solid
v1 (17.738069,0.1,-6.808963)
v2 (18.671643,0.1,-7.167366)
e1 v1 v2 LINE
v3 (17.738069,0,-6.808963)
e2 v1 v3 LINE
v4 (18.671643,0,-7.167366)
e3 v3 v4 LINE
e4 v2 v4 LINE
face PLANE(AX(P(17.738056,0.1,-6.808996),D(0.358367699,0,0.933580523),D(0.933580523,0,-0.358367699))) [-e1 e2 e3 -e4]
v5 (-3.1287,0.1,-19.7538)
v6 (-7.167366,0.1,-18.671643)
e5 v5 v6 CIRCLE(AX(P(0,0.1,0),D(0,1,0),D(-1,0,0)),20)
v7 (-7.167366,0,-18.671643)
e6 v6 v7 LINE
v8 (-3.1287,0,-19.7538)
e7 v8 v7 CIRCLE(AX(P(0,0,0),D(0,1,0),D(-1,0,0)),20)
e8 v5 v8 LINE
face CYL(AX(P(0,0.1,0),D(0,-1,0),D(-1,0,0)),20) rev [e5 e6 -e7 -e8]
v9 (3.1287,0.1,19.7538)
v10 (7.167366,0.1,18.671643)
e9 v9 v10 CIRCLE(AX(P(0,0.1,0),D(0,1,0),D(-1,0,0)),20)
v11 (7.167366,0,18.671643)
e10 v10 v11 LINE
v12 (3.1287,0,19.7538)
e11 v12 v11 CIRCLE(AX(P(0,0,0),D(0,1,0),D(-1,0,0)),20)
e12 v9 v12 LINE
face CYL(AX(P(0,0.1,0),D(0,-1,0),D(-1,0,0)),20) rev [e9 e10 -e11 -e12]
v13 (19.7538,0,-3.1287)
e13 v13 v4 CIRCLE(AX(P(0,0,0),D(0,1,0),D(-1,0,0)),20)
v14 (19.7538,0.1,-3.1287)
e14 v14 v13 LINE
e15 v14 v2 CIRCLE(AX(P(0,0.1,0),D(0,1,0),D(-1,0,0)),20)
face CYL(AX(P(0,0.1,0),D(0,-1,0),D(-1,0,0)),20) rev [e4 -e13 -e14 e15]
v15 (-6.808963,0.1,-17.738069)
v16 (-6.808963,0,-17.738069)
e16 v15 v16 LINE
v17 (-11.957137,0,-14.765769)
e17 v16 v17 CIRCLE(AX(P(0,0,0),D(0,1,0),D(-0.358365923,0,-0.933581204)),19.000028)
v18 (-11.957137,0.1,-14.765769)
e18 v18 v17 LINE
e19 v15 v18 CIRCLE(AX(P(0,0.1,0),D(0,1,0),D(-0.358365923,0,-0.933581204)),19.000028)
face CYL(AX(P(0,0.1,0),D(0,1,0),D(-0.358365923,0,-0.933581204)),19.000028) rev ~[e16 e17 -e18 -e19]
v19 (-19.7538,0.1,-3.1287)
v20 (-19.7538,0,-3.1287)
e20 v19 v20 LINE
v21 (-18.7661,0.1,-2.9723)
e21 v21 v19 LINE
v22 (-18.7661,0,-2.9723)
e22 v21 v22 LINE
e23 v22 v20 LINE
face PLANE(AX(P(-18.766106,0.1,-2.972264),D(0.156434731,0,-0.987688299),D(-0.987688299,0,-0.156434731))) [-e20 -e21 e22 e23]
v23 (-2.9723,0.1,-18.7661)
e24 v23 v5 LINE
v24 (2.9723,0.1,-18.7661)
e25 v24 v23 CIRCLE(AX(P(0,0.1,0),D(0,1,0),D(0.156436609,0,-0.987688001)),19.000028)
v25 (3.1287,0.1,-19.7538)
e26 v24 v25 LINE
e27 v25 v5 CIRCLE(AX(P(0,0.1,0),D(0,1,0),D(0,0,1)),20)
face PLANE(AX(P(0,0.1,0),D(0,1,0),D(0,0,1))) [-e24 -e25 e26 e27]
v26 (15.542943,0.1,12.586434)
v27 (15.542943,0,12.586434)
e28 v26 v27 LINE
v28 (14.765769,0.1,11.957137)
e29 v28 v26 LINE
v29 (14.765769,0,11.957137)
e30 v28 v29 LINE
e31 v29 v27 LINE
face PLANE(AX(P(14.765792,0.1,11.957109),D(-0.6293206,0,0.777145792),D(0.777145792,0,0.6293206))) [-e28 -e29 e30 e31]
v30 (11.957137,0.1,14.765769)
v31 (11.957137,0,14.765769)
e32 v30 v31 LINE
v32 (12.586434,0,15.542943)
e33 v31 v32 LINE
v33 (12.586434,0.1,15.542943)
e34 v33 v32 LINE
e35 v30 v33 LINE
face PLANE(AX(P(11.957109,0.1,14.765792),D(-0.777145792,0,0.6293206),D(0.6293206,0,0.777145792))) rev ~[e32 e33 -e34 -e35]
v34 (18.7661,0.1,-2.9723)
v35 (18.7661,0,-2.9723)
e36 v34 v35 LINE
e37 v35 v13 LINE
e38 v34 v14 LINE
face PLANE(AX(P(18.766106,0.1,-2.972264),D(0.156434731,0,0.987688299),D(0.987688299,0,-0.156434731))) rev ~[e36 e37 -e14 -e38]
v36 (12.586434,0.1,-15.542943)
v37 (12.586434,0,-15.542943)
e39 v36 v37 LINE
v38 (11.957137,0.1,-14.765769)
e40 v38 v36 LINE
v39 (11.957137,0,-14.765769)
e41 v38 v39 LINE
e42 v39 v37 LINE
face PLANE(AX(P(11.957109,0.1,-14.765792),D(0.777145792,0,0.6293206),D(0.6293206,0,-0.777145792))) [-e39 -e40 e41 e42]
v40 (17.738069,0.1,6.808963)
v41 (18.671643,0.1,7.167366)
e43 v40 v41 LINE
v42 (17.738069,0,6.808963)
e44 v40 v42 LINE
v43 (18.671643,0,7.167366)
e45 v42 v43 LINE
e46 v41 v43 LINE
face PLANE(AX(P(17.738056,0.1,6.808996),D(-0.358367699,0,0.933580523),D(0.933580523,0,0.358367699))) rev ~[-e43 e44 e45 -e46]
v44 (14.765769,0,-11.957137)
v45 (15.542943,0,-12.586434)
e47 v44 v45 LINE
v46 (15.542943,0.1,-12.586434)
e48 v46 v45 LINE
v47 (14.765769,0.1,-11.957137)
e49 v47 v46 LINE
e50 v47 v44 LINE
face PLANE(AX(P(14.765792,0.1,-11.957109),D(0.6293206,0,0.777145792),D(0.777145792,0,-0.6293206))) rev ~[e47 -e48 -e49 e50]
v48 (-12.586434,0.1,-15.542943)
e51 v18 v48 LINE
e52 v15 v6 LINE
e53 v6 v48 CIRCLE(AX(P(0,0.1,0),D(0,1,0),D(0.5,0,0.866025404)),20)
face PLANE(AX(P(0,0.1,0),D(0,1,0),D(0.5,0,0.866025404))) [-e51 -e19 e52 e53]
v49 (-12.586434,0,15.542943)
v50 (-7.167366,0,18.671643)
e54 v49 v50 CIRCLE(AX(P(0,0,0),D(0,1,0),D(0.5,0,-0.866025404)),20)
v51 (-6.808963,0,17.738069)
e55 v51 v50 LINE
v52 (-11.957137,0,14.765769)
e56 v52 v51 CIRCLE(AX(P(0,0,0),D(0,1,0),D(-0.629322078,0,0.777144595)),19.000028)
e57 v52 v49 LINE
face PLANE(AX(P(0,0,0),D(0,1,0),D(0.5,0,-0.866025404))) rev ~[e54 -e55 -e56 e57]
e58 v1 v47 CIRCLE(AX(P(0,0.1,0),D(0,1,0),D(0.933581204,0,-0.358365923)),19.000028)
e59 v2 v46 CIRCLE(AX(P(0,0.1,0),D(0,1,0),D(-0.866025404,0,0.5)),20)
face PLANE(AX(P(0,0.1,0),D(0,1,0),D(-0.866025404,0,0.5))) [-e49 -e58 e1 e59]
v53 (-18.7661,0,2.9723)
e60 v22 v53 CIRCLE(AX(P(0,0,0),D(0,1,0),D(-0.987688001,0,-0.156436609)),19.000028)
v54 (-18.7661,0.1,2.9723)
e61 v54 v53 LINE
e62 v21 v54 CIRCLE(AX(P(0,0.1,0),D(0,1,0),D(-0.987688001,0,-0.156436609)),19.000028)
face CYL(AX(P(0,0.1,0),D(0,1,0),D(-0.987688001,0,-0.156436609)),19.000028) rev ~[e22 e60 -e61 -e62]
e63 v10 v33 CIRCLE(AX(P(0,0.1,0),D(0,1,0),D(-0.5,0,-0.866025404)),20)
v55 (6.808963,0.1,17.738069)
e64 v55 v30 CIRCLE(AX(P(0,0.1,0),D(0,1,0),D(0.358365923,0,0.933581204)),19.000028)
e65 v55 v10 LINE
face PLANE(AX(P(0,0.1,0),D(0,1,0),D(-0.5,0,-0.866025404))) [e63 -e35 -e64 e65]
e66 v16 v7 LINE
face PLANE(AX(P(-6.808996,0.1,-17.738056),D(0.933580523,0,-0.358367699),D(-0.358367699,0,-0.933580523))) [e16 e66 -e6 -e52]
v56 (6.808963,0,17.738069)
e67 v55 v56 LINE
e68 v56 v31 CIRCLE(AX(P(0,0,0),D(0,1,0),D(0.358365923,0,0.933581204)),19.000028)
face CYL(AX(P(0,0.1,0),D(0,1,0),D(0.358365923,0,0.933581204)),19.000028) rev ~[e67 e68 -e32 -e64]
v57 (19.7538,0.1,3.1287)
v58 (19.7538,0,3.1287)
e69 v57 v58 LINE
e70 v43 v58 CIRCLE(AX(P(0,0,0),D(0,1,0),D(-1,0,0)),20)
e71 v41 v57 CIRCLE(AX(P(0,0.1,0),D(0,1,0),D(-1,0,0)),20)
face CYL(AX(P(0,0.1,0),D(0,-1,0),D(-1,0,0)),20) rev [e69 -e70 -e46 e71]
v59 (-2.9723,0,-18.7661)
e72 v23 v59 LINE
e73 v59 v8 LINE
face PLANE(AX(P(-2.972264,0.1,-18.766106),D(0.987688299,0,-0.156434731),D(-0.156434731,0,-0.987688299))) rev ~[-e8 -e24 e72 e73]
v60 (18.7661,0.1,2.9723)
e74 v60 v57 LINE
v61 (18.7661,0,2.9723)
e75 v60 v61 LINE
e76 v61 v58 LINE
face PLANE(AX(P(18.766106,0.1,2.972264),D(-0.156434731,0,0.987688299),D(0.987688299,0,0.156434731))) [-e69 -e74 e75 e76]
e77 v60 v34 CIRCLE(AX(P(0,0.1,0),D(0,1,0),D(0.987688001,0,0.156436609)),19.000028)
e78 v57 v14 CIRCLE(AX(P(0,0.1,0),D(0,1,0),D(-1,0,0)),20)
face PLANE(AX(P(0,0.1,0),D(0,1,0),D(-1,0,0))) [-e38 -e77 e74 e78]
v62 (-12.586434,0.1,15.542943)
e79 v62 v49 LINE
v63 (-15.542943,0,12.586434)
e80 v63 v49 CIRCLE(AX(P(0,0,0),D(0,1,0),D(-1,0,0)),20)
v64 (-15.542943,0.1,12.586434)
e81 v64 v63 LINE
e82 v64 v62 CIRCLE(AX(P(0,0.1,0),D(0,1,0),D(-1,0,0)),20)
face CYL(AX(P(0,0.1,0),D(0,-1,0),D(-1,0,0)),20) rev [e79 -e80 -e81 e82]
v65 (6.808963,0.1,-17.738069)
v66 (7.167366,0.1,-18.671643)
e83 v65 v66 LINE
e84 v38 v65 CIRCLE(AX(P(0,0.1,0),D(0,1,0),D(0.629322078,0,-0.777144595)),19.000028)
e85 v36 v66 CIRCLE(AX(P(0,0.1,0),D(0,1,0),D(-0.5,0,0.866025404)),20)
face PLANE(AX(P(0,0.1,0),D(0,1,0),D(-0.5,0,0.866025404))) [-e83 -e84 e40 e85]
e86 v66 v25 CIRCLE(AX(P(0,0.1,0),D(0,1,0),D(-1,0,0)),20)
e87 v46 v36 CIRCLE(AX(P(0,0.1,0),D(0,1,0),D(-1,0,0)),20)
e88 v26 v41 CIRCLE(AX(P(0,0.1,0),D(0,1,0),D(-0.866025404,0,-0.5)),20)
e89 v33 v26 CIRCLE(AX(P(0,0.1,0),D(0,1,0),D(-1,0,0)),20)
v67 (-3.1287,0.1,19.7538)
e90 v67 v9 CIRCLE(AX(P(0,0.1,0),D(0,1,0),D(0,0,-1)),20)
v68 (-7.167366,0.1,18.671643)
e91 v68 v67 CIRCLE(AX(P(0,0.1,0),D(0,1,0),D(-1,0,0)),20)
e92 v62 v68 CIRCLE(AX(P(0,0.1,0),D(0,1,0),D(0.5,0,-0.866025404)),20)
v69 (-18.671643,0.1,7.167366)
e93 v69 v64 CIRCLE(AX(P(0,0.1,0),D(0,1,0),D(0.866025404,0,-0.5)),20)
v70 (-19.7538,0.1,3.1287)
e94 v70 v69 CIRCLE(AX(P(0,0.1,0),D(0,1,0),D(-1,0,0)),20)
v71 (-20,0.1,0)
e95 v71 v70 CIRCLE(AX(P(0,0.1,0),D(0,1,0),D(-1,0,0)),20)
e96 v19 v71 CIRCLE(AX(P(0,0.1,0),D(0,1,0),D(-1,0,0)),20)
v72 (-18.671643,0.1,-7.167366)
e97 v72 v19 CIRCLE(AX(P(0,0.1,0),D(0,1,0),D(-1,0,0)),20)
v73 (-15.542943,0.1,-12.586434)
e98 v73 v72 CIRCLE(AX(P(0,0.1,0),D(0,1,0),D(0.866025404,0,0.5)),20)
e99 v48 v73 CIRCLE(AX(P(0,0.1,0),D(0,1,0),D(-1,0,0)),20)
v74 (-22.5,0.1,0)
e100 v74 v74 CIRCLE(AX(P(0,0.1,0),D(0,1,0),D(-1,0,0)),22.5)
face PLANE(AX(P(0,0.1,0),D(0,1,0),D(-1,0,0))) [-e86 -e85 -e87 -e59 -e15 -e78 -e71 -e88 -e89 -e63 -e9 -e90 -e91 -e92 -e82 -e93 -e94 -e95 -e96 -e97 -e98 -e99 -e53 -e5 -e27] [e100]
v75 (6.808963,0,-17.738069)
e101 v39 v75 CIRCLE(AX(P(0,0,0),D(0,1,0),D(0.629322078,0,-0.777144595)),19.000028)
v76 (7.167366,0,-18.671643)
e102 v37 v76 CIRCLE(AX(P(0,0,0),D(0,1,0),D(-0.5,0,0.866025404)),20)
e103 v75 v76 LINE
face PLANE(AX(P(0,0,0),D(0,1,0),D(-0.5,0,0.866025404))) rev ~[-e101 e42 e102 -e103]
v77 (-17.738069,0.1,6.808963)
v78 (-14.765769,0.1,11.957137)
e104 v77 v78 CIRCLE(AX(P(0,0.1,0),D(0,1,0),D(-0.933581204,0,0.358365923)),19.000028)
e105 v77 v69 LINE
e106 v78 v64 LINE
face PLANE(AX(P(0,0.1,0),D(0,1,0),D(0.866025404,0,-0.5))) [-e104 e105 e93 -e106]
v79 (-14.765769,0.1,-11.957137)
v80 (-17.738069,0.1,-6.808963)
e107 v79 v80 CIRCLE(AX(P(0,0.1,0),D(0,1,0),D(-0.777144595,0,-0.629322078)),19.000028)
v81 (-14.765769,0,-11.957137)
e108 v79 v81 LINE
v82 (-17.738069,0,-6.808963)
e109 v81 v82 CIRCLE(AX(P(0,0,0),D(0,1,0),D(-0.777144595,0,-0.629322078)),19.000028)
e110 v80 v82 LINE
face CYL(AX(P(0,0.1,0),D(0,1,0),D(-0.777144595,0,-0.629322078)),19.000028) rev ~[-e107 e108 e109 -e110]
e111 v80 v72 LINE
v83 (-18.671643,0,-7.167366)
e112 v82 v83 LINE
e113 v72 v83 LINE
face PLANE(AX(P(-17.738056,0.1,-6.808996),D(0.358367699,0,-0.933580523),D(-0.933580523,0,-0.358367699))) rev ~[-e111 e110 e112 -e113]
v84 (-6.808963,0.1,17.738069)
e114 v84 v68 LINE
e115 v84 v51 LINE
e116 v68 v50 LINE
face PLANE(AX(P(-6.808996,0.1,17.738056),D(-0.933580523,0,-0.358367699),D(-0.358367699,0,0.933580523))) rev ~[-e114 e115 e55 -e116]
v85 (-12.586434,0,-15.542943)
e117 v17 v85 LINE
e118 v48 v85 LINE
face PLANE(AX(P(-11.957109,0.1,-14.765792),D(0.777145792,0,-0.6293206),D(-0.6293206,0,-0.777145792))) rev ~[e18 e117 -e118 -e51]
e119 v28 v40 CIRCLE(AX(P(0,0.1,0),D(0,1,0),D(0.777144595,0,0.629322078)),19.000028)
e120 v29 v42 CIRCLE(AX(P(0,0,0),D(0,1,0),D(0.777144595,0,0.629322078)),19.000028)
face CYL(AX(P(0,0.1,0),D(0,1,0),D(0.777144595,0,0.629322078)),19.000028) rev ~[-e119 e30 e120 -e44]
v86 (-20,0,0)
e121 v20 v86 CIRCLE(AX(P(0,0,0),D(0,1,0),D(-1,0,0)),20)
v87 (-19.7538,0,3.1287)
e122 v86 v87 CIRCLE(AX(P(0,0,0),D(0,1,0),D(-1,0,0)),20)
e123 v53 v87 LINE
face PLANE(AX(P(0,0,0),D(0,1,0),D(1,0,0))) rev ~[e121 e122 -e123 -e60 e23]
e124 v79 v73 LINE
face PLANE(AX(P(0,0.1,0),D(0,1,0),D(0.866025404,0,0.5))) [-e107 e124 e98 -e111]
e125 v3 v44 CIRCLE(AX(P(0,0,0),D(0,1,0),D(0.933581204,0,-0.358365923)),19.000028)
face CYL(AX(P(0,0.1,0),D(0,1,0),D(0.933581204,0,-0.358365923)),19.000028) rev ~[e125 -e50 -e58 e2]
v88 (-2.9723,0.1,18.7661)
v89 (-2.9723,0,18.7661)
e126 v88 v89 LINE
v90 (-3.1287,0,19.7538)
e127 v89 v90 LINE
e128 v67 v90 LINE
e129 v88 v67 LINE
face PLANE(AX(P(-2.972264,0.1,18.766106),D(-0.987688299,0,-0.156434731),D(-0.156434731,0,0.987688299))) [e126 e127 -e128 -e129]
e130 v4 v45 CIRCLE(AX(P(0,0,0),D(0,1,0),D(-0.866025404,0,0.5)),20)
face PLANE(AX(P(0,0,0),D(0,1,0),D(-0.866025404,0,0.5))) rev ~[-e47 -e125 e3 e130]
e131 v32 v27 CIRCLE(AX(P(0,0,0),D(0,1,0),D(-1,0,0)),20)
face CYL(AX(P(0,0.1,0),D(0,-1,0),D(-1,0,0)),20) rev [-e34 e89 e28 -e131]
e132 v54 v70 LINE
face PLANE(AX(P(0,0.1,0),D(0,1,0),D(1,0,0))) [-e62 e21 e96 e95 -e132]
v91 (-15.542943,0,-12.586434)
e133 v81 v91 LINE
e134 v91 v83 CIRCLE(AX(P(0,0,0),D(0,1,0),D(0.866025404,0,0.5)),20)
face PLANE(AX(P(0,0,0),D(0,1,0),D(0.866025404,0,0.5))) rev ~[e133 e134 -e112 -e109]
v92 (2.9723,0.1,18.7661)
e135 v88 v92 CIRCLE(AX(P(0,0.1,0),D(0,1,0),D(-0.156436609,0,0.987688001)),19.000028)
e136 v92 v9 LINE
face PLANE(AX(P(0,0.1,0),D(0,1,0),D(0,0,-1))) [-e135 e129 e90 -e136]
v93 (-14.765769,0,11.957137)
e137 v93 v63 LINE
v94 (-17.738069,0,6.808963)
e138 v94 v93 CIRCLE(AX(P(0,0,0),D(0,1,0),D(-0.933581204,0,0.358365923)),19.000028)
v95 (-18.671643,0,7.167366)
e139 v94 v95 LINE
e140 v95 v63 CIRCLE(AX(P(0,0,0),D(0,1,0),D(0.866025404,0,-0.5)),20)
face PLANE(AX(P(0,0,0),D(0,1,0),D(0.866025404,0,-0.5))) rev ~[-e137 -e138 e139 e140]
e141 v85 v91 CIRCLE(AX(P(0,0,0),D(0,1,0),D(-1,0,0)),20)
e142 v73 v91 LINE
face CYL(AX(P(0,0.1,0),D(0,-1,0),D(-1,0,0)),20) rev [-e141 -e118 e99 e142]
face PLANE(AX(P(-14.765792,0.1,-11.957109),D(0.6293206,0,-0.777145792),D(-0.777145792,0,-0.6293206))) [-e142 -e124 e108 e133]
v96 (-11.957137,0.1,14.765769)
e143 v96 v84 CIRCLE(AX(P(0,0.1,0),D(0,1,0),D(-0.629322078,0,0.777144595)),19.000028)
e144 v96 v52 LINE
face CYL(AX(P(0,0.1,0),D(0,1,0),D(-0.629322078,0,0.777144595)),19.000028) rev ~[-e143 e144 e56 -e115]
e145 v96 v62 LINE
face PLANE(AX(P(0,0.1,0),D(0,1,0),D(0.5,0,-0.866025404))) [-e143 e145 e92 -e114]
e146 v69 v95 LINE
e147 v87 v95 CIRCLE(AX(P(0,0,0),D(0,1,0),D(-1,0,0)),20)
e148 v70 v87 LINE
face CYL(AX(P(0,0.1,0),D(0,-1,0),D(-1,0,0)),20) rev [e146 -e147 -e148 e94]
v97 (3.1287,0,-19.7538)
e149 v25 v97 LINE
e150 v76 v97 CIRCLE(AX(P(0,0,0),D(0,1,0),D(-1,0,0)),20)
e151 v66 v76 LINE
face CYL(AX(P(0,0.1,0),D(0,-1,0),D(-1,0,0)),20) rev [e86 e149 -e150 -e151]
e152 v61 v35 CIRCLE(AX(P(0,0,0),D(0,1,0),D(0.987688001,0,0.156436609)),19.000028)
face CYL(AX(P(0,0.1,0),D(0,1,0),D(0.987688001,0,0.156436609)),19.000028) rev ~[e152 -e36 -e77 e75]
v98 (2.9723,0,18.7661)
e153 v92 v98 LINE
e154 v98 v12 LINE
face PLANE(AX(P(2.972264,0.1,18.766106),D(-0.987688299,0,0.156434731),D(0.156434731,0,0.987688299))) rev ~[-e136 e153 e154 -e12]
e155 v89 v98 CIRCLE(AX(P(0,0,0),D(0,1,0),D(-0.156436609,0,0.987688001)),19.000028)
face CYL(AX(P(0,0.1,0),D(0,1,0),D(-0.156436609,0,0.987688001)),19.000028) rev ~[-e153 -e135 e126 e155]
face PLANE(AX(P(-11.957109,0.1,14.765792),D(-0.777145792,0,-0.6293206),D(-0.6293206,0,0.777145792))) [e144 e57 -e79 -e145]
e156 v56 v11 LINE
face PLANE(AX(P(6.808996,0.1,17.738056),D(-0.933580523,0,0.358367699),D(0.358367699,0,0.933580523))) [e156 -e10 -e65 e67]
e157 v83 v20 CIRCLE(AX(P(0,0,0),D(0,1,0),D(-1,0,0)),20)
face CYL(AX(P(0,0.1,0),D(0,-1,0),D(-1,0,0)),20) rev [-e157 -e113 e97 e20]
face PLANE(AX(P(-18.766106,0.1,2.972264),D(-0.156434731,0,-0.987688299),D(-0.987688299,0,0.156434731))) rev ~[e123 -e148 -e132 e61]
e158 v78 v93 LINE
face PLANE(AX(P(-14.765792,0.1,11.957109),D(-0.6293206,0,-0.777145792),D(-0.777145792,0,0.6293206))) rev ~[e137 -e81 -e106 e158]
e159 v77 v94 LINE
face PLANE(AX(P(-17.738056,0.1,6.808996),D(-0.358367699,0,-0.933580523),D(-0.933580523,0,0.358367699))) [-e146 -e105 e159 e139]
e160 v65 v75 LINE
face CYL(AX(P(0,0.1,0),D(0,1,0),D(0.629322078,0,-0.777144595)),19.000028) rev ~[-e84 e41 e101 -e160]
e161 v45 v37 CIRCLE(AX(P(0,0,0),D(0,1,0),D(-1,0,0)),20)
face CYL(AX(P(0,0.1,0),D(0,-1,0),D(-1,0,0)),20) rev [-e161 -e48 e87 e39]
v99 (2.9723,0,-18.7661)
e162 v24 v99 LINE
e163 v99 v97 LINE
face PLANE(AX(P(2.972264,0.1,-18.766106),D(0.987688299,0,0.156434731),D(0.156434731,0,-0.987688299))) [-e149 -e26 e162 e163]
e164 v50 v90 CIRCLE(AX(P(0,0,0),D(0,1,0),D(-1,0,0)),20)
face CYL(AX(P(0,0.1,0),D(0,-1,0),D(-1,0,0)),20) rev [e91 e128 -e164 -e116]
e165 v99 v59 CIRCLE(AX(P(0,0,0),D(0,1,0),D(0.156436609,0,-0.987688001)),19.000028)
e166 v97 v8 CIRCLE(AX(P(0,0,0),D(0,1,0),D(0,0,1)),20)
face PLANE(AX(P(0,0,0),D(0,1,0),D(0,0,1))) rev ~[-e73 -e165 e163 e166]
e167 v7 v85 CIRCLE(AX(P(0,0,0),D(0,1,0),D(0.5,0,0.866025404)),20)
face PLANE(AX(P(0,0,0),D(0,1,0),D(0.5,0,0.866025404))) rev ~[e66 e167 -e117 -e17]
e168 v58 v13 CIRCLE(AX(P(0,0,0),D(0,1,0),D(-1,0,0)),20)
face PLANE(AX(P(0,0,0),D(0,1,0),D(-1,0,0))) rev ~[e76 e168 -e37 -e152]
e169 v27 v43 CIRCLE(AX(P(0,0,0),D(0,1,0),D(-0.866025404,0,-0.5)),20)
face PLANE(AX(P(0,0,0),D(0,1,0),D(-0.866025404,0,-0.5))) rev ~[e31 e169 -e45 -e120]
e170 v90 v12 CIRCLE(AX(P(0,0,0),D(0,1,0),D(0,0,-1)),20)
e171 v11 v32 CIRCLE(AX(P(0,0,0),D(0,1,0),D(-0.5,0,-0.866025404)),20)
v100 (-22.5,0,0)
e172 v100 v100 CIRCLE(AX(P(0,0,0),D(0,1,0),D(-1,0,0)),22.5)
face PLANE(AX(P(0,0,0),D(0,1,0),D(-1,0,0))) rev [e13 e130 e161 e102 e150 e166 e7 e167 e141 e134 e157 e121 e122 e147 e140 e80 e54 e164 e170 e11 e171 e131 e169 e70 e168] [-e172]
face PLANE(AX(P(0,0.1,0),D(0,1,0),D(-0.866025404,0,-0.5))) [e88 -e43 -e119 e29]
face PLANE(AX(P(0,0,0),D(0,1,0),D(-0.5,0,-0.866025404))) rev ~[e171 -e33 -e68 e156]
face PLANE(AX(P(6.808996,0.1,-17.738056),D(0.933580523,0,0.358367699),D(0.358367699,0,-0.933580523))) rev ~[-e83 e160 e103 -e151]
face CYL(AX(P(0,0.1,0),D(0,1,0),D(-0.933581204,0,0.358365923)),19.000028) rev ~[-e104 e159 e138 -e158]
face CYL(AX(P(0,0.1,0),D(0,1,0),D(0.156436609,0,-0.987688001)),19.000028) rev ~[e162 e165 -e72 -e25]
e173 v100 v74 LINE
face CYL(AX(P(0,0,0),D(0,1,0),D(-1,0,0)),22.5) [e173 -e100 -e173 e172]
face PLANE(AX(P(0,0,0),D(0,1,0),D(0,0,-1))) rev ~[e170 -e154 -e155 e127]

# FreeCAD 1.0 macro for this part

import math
import FreeCAD as App
import Part
import Sketcher
Q = App.Units.Quantity


def add_polygon(sketch, points):
    """Adds a closed chain of lines whose ends are joined by coincident constraints."""
    first, n = sketch.GeometryCount, len(points)
    for a, b in zip(points, points[1:] + points[:1]):
        sketch.addGeometry(Part.LineSegment(App.Vector(*a, 0), App.Vector(*b, 0)), False)
    for i in range(n):
        sketch.addConstraint(Sketcher.Constraint("Coincident", first + i, 2, first + (i + 1) % n, 1))

doc = App.newDocument("Part")
params = doc.addObject("Spreadsheet::Sheet", "Params")
for row, (alias, value) in enumerate([
    ("sketch1_height", "0.1 mm"),
    ("revolution_angle", "360 deg"),
    ("sketch2_radius", "19 mm"),
    ("sketch2_radius2", "20 mm"),
    ("pad1_length", "0.1 mm"),
], start=1):
    params.set(f"A{row}", alias)
    params.set(f"B{row}", "=" + value)
    params.setAlias(f"B{row}", alias)

body = doc.addObject("PartDesign::Body", "Body")

# Sketch on XY plane
sketch1 = body.newObject("Sketcher::SketchObject", "Sketch")
sketch1.AttachmentSupport = (doc.getObject("XY_Plane"), [""])
sketch1.MapMode = "FlatFace"
add_polygon(sketch1, [(-22.5, 0), (-20, 0), (-20, 0.1), (-22.5, 0.1)])  # lines 0-3
sketch1.addConstraint([
    Sketcher.Constraint("Horizontal", 0),
    Sketcher.Constraint("Vertical", 1),
    Sketcher.Constraint("Horizontal", 2),
    Sketcher.Constraint("Vertical", 3),
    Sketcher.Constraint("PointOnObject", 0, 2, -1),
    Sketcher.Constraint("DistanceY", 1, 1, 1, 2, Q("0.1 mm")),
    Sketcher.Constraint("DistanceX", 0, 2, -1, 1, Q("20 mm")),
    Sketcher.Constraint("DistanceX", 2, 2, -1, 1, Q("22.5 mm")),
])
sketch1.setExpression("Constraints[9]", "Params.sketch1_height")
revolution = body.newObject("PartDesign::Revolution", "Revolution")
revolution.Profile = sketch1
revolution.ReferenceAxis = (sketch1, ["V_Axis"])
revolution.setExpression("Angle", "Params.revolution_angle")

# Sketch on XZ plane
sketch2 = body.newObject("Sketcher::SketchObject", "Sketch001")
sketch2.AttachmentSupport = (doc.getObject("XZ_Plane"), [""])
sketch2.MapMode = "FlatFace"
sketch2.AttachmentOffset = App.Placement(App.Vector(0, 0, -0.1), App.Rotation())
sketch2.addGeometry([
    Part.ArcOfCircle(Part.Circle(App.Vector(0, 0, 0), App.Vector(0, 0, 1), 19.000028), math.radians(170.999876), math.radians(189.000124)),
    Part.LineSegment(App.Vector(-18.766106, -2.972264, 0), App.Vector(-19.7538, -3.1287, 0)),
    Part.ArcOfCircle(Part.Circle(App.Vector(0, 0, 0), App.Vector(0, 0, 1), 20), math.radians(170.999985), math.radians(189.000015)),
    Part.LineSegment(App.Vector(-19.7538, 3.1287, 0), App.Vector(-18.766106, 2.972264, 0)),
], False)
sketch2.addConstraint([
    Sketcher.Constraint("Coincident", 0, 2, 1, 1),
    Sketcher.Constraint("Coincident", 1, 2, 2, 2),
    Sketcher.Constraint("Coincident", 2, 1, 3, 1),
    Sketcher.Constraint("Coincident", 3, 2, 0, 1),
    Sketcher.Constraint("Coincident", 0, 3, -1, 1),
    Sketcher.Constraint("Coincident", 2, 3, -1, 1),
    Sketcher.Constraint("Vertical", 1, 2, 2, 1),
    Sketcher.Constraint("Vertical", 0, 2, 3, 2),
    Sketcher.Constraint("Radius", 0, Q("19 mm")),
    Sketcher.Constraint("Radius", 2, Q("20 mm")),
    Sketcher.Constraint("Angle", 1, Q("-171 deg")),
    Sketcher.Constraint("DistanceX", 0, 2, -1, 1, Q("18.766 mm")),
])
sketch2.setExpression("Constraints[8]", "Params.sketch2_radius")
sketch2.setExpression("Constraints[9]", "Params.sketch2_radius2")
pad1 = body.newObject("PartDesign::Pad", "Pad")
pad1.Profile = sketch2
pad1.setExpression("Length", "Params.pad1_length")
doc.recompute()

polarpattern = body.newObject("PartDesign::PolarPattern", "PolarPattern")
polarpattern.Originals = [pad1]
polarpattern.Axis = (doc.getObject("Y_Axis"), [""])
polarpattern.Angle = 360
polarpattern.Occurrences = 12
body.Tip = polarpattern

doc.recompute()
